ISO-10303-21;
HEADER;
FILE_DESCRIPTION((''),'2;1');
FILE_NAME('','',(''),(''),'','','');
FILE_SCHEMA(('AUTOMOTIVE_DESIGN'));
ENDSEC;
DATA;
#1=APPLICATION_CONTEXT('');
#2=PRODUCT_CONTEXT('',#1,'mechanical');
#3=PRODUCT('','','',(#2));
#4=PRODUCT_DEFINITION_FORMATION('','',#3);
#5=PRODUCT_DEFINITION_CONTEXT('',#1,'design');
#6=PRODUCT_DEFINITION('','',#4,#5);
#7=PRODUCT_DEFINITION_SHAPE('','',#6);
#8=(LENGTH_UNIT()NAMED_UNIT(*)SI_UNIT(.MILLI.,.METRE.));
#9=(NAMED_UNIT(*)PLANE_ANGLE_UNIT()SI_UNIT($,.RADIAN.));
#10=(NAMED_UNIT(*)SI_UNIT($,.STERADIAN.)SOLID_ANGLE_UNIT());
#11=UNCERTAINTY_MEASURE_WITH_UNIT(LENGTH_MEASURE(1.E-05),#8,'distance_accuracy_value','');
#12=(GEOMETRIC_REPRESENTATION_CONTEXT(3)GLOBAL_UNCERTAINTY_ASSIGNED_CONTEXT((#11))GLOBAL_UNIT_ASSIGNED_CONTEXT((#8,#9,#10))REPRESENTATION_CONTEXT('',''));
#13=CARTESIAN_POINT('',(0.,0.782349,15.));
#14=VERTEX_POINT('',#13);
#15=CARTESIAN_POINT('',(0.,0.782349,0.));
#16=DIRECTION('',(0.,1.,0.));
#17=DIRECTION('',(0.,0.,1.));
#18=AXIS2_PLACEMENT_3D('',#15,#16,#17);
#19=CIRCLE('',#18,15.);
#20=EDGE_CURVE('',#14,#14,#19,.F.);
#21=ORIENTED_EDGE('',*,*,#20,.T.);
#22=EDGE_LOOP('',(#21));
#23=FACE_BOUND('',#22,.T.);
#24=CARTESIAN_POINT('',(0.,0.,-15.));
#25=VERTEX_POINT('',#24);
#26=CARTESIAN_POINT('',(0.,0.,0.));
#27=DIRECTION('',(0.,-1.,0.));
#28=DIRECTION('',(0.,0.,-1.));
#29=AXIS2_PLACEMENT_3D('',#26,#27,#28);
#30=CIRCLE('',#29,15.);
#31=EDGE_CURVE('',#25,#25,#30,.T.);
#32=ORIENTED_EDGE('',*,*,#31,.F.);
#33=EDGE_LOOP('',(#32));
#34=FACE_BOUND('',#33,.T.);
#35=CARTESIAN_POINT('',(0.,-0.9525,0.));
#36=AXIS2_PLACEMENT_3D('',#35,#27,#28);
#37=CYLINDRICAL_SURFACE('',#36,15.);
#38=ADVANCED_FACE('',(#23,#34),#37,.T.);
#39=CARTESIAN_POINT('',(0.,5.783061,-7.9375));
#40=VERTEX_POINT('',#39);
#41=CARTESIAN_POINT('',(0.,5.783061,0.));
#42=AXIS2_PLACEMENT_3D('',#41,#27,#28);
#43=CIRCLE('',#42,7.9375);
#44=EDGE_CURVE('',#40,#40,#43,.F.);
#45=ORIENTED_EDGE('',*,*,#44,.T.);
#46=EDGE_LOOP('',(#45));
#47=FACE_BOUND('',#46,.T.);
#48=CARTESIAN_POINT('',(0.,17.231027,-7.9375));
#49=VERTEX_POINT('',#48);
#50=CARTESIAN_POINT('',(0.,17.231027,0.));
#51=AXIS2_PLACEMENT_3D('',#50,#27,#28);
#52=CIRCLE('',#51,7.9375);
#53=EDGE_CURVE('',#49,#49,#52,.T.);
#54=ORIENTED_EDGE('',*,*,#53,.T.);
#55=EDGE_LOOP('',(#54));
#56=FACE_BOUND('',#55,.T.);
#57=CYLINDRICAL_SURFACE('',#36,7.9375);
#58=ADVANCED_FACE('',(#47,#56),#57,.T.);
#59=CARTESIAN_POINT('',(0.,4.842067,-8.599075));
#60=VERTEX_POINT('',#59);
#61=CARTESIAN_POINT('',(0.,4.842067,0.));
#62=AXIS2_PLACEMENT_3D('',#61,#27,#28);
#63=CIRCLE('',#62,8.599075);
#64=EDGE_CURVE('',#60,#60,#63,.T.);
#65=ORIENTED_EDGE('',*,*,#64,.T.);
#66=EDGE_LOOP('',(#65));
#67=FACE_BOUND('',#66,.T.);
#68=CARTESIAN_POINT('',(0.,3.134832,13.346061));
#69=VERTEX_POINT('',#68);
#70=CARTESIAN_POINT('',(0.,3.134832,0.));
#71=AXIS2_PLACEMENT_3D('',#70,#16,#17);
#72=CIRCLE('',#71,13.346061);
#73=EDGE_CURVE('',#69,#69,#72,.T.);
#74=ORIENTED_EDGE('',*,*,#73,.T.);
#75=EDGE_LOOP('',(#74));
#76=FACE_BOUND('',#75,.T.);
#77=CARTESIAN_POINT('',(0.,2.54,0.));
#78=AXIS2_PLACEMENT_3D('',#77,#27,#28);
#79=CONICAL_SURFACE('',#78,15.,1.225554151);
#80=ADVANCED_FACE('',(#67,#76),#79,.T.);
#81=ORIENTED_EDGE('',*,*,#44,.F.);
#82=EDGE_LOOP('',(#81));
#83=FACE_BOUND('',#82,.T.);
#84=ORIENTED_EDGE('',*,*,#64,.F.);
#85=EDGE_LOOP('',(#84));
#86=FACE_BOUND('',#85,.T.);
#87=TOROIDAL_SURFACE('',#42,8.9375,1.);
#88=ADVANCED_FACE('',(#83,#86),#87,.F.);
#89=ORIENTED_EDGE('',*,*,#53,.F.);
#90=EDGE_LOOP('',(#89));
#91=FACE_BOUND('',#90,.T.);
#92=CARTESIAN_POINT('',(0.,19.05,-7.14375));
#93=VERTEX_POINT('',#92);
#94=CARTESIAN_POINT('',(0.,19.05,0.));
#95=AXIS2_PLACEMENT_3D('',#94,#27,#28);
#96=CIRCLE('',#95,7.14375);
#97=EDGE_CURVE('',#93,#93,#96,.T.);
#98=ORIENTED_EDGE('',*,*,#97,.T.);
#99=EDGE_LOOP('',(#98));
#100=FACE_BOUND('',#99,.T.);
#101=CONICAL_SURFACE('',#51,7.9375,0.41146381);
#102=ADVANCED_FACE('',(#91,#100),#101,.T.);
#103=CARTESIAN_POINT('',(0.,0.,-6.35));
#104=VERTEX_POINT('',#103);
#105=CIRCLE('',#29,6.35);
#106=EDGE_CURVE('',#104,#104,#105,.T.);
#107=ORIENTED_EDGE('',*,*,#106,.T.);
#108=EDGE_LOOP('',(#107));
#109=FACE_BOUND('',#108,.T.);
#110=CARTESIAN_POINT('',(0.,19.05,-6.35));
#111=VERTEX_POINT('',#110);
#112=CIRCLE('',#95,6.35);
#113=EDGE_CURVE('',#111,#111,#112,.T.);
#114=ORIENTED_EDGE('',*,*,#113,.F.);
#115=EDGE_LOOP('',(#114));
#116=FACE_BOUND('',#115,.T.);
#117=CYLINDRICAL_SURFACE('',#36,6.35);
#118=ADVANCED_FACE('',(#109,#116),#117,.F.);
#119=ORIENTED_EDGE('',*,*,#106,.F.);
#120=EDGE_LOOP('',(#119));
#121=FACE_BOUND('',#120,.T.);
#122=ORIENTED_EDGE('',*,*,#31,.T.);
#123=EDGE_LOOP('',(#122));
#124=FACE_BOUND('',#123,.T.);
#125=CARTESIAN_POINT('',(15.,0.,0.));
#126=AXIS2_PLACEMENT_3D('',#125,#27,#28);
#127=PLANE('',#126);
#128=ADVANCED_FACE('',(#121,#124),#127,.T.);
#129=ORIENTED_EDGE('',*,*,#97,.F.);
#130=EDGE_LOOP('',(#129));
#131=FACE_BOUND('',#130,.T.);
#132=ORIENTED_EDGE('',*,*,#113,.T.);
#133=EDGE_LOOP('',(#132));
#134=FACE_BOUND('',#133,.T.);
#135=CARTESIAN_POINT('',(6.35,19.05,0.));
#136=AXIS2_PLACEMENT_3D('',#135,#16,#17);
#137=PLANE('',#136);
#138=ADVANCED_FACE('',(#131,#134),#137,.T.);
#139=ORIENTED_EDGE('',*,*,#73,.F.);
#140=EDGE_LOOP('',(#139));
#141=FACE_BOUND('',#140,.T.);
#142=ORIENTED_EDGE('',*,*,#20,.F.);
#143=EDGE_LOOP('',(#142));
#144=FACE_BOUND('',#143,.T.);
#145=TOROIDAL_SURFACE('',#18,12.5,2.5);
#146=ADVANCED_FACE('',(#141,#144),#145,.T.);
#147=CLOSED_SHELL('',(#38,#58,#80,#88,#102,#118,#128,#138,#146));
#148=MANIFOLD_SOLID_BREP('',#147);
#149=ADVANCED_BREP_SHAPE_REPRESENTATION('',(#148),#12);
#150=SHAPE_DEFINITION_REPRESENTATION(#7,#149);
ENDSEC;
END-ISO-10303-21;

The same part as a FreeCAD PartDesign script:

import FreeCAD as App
import Part
import Sketcher
Q = App.Units.Quantity


def edges_at(feature, points):
    """Names of the edges that pass closest to the given points."""
    edges = feature.Shape.Edges
    near = lambda p: min(range(len(edges)), key=lambda i: edges[i].distToShape(Part.Vertex(*p))[0])
    return sorted({f"Edge{near(p) + 1}" for p in points})


def add_polygon(sketch, points):
    """Adds a closed chain of lines whose ends are joined by coincident constraints."""
    first, n = sketch.GeometryCount, len(points)
    for a, b in zip(points, points[1:] + points[:1]):
        sketch.addGeometry(Part.LineSegment(App.Vector(*a, 0), App.Vector(*b, 0)), False)
    for i in range(n):
        sketch.addConstraint(Sketcher.Constraint("Coincident", first + i, 2, first + (i + 1) % n, 1))

doc = App.newDocument("Part")
body = doc.addObject("PartDesign::Body", "Body")

# Sketch on XY plane
sketch1 = body.newObject("Sketcher::SketchObject", "Sketch")
sketch1.AttachmentSupport = (doc.getObject("XY_Plane"), [""])
sketch1.MapMode = "FlatFace"
add_polygon(sketch1, [(7.1, 19.1), (6.3, 19.1), (6.3, 0), (15, 0), (15, 2.5), (7.9, 5.1), (7.9, 17.2)])  # lines 0-6
sketch1.addConstraint(Sketcher.Constraint("Horizontal", 0))
sketch1.addConstraint(Sketcher.Constraint("Vertical", 1))
sketch1.addConstraint(Sketcher.Constraint("Horizontal", 2))
sketch1.addConstraint(Sketcher.Constraint("Vertical", 3))
sketch1.addConstraint(Sketcher.Constraint("Vertical", 5))
sketch1.addConstraint(Sketcher.Constraint("PointOnObject", 1, 2, -1))
sketch1.addConstraint(Sketcher.Constraint("DistanceY", 3, 1, 3, 2, Q("0.1 in")))
sketch1.addConstraint(Sketcher.Constraint("DistanceY", 1, 2, 1, 1, Q("0.75 in")))
sketch1.addConstraint(Sketcher.Constraint("DistanceY", -1, 1, 4, 2, Q("0.2 in")))
sketch1.addConstraint(Sketcher.Constraint("DistanceX", 0, 2, 0, 1, Q("0.03125 in")))
sketch1.addConstraint(Sketcher.Constraint("DistanceX", -1, 1, 0, 2, Q("0.25 in")))
sketch1.addConstraint(Sketcher.Constraint("DistanceX", -1, 1, 4, 2, Q("0.3125 in")))
sketch1.addConstraint(Sketcher.Constraint("DistanceX", 2, 1, 2, 2, Q("8.65 mm")))
sketch1.addConstraint(Sketcher.Constraint("DistanceY", 5, 1, 5, 2, Q("12.151027 mm")))
revolution = body.newObject("PartDesign::Revolution", "Revolution")
revolution.Profile = sketch1
revolution.ReferenceAxis = (sketch1, ["V_Axis"])
revolution.Angle = 360
doc.recompute()

fillet = body.newObject("PartDesign::Fillet", "Fillet")
fillet.Base = (revolution, edges_at(revolution, [(-15, 2.54, 0)]))
fillet.Radius = 2.5
doc.recompute()

fillet2 = body.newObject("PartDesign::Fillet", "Fillet001")
fillet2.Base = (fillet, edges_at(fillet, [(-7.938, 5.08, 0)]))
fillet2.Radius = 1

doc.recompute()
